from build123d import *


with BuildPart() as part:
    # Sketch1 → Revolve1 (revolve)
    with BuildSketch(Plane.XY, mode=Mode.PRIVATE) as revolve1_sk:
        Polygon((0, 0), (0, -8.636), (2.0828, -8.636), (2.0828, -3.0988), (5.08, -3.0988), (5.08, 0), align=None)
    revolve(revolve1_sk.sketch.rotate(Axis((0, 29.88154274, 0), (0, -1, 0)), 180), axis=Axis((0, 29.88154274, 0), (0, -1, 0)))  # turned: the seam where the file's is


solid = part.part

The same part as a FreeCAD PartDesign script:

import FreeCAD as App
import Part
import Sketcher
from FreeCAD import Vector
Q = App.Units.Quantity

doc = App.newDocument("Part")
body = doc.addObject("PartDesign::Body", "Body")

# Sketch on XY plane
sketch1 = body.newObject("Sketcher::SketchObject", "Sketch")
sketch1.AttachmentSupport = (doc.getObject("XY_Plane"), [""])
sketch1.MapMode = "FlatFace"
sketch1.addGeometry([
    Part.LineSegment(Vector(0, 0, 0), Vector(0, -8.6, 0)),  # 0
    Part.LineSegment(Vector(0, -8.6, 0), Vector(2.1, -8.6, 0)),  # 1
    Part.LineSegment(Vector(2.1, -8.6, 0), Vector(2.1, -3.1, 0)),  # 2
    Part.LineSegment(Vector(2.1, -3.1, 0), Vector(5.1, -3.1, 0)),  # 3
    Part.LineSegment(Vector(5.1, -3.1, 0), Vector(5.1, 0, 0)),  # 4
    Part.LineSegment(Vector(5.1, 0, 0), Vector(0, 0, 0)),  # 5
], False)
sketch1.addConstraint([
    Sketcher.Constraint("Coincident", 0, 2, 1, 1),
    Sketcher.Constraint("Coincident", 1, 2, 2, 1),
    Sketcher.Constraint("Coincident", 2, 2, 3, 1),
    Sketcher.Constraint("Coincident", 3, 2, 4, 1),
    Sketcher.Constraint("Coincident", 4, 2, 5, 1),
    Sketcher.Constraint("Coincident", 5, 2, 0, 1),
    Sketcher.Constraint("Vertical", 0),
    Sketcher.Constraint("Horizontal", 1),
    Sketcher.Constraint("Vertical", 2),
    Sketcher.Constraint("Horizontal", 3),
    Sketcher.Constraint("Vertical", 4),
    Sketcher.Constraint("Horizontal", 5),
    Sketcher.Constraint("Coincident", 5, 2, -1, 1),
    Sketcher.Constraint("DistanceX", 5, 2, 5, 1, Q("0.2 in")),
    Sketcher.Constraint("DistanceY", 0, 2, 0, 1, Q("0.34 in")),
    Sketcher.Constraint("DistanceX", 1, 1, 1, 2, Q("0.082 in")),
    Sketcher.Constraint("DistanceY", 2, 1, 2, 2, Q("0.218 in")),
])
revolution = body.newObject("PartDesign::Revolution", "Revolution")
revolution.Profile = sketch1
revolution.ReferenceAxis = (sketch1, ["V_Axis"])
revolution.Angle = 360

doc.recompute()
